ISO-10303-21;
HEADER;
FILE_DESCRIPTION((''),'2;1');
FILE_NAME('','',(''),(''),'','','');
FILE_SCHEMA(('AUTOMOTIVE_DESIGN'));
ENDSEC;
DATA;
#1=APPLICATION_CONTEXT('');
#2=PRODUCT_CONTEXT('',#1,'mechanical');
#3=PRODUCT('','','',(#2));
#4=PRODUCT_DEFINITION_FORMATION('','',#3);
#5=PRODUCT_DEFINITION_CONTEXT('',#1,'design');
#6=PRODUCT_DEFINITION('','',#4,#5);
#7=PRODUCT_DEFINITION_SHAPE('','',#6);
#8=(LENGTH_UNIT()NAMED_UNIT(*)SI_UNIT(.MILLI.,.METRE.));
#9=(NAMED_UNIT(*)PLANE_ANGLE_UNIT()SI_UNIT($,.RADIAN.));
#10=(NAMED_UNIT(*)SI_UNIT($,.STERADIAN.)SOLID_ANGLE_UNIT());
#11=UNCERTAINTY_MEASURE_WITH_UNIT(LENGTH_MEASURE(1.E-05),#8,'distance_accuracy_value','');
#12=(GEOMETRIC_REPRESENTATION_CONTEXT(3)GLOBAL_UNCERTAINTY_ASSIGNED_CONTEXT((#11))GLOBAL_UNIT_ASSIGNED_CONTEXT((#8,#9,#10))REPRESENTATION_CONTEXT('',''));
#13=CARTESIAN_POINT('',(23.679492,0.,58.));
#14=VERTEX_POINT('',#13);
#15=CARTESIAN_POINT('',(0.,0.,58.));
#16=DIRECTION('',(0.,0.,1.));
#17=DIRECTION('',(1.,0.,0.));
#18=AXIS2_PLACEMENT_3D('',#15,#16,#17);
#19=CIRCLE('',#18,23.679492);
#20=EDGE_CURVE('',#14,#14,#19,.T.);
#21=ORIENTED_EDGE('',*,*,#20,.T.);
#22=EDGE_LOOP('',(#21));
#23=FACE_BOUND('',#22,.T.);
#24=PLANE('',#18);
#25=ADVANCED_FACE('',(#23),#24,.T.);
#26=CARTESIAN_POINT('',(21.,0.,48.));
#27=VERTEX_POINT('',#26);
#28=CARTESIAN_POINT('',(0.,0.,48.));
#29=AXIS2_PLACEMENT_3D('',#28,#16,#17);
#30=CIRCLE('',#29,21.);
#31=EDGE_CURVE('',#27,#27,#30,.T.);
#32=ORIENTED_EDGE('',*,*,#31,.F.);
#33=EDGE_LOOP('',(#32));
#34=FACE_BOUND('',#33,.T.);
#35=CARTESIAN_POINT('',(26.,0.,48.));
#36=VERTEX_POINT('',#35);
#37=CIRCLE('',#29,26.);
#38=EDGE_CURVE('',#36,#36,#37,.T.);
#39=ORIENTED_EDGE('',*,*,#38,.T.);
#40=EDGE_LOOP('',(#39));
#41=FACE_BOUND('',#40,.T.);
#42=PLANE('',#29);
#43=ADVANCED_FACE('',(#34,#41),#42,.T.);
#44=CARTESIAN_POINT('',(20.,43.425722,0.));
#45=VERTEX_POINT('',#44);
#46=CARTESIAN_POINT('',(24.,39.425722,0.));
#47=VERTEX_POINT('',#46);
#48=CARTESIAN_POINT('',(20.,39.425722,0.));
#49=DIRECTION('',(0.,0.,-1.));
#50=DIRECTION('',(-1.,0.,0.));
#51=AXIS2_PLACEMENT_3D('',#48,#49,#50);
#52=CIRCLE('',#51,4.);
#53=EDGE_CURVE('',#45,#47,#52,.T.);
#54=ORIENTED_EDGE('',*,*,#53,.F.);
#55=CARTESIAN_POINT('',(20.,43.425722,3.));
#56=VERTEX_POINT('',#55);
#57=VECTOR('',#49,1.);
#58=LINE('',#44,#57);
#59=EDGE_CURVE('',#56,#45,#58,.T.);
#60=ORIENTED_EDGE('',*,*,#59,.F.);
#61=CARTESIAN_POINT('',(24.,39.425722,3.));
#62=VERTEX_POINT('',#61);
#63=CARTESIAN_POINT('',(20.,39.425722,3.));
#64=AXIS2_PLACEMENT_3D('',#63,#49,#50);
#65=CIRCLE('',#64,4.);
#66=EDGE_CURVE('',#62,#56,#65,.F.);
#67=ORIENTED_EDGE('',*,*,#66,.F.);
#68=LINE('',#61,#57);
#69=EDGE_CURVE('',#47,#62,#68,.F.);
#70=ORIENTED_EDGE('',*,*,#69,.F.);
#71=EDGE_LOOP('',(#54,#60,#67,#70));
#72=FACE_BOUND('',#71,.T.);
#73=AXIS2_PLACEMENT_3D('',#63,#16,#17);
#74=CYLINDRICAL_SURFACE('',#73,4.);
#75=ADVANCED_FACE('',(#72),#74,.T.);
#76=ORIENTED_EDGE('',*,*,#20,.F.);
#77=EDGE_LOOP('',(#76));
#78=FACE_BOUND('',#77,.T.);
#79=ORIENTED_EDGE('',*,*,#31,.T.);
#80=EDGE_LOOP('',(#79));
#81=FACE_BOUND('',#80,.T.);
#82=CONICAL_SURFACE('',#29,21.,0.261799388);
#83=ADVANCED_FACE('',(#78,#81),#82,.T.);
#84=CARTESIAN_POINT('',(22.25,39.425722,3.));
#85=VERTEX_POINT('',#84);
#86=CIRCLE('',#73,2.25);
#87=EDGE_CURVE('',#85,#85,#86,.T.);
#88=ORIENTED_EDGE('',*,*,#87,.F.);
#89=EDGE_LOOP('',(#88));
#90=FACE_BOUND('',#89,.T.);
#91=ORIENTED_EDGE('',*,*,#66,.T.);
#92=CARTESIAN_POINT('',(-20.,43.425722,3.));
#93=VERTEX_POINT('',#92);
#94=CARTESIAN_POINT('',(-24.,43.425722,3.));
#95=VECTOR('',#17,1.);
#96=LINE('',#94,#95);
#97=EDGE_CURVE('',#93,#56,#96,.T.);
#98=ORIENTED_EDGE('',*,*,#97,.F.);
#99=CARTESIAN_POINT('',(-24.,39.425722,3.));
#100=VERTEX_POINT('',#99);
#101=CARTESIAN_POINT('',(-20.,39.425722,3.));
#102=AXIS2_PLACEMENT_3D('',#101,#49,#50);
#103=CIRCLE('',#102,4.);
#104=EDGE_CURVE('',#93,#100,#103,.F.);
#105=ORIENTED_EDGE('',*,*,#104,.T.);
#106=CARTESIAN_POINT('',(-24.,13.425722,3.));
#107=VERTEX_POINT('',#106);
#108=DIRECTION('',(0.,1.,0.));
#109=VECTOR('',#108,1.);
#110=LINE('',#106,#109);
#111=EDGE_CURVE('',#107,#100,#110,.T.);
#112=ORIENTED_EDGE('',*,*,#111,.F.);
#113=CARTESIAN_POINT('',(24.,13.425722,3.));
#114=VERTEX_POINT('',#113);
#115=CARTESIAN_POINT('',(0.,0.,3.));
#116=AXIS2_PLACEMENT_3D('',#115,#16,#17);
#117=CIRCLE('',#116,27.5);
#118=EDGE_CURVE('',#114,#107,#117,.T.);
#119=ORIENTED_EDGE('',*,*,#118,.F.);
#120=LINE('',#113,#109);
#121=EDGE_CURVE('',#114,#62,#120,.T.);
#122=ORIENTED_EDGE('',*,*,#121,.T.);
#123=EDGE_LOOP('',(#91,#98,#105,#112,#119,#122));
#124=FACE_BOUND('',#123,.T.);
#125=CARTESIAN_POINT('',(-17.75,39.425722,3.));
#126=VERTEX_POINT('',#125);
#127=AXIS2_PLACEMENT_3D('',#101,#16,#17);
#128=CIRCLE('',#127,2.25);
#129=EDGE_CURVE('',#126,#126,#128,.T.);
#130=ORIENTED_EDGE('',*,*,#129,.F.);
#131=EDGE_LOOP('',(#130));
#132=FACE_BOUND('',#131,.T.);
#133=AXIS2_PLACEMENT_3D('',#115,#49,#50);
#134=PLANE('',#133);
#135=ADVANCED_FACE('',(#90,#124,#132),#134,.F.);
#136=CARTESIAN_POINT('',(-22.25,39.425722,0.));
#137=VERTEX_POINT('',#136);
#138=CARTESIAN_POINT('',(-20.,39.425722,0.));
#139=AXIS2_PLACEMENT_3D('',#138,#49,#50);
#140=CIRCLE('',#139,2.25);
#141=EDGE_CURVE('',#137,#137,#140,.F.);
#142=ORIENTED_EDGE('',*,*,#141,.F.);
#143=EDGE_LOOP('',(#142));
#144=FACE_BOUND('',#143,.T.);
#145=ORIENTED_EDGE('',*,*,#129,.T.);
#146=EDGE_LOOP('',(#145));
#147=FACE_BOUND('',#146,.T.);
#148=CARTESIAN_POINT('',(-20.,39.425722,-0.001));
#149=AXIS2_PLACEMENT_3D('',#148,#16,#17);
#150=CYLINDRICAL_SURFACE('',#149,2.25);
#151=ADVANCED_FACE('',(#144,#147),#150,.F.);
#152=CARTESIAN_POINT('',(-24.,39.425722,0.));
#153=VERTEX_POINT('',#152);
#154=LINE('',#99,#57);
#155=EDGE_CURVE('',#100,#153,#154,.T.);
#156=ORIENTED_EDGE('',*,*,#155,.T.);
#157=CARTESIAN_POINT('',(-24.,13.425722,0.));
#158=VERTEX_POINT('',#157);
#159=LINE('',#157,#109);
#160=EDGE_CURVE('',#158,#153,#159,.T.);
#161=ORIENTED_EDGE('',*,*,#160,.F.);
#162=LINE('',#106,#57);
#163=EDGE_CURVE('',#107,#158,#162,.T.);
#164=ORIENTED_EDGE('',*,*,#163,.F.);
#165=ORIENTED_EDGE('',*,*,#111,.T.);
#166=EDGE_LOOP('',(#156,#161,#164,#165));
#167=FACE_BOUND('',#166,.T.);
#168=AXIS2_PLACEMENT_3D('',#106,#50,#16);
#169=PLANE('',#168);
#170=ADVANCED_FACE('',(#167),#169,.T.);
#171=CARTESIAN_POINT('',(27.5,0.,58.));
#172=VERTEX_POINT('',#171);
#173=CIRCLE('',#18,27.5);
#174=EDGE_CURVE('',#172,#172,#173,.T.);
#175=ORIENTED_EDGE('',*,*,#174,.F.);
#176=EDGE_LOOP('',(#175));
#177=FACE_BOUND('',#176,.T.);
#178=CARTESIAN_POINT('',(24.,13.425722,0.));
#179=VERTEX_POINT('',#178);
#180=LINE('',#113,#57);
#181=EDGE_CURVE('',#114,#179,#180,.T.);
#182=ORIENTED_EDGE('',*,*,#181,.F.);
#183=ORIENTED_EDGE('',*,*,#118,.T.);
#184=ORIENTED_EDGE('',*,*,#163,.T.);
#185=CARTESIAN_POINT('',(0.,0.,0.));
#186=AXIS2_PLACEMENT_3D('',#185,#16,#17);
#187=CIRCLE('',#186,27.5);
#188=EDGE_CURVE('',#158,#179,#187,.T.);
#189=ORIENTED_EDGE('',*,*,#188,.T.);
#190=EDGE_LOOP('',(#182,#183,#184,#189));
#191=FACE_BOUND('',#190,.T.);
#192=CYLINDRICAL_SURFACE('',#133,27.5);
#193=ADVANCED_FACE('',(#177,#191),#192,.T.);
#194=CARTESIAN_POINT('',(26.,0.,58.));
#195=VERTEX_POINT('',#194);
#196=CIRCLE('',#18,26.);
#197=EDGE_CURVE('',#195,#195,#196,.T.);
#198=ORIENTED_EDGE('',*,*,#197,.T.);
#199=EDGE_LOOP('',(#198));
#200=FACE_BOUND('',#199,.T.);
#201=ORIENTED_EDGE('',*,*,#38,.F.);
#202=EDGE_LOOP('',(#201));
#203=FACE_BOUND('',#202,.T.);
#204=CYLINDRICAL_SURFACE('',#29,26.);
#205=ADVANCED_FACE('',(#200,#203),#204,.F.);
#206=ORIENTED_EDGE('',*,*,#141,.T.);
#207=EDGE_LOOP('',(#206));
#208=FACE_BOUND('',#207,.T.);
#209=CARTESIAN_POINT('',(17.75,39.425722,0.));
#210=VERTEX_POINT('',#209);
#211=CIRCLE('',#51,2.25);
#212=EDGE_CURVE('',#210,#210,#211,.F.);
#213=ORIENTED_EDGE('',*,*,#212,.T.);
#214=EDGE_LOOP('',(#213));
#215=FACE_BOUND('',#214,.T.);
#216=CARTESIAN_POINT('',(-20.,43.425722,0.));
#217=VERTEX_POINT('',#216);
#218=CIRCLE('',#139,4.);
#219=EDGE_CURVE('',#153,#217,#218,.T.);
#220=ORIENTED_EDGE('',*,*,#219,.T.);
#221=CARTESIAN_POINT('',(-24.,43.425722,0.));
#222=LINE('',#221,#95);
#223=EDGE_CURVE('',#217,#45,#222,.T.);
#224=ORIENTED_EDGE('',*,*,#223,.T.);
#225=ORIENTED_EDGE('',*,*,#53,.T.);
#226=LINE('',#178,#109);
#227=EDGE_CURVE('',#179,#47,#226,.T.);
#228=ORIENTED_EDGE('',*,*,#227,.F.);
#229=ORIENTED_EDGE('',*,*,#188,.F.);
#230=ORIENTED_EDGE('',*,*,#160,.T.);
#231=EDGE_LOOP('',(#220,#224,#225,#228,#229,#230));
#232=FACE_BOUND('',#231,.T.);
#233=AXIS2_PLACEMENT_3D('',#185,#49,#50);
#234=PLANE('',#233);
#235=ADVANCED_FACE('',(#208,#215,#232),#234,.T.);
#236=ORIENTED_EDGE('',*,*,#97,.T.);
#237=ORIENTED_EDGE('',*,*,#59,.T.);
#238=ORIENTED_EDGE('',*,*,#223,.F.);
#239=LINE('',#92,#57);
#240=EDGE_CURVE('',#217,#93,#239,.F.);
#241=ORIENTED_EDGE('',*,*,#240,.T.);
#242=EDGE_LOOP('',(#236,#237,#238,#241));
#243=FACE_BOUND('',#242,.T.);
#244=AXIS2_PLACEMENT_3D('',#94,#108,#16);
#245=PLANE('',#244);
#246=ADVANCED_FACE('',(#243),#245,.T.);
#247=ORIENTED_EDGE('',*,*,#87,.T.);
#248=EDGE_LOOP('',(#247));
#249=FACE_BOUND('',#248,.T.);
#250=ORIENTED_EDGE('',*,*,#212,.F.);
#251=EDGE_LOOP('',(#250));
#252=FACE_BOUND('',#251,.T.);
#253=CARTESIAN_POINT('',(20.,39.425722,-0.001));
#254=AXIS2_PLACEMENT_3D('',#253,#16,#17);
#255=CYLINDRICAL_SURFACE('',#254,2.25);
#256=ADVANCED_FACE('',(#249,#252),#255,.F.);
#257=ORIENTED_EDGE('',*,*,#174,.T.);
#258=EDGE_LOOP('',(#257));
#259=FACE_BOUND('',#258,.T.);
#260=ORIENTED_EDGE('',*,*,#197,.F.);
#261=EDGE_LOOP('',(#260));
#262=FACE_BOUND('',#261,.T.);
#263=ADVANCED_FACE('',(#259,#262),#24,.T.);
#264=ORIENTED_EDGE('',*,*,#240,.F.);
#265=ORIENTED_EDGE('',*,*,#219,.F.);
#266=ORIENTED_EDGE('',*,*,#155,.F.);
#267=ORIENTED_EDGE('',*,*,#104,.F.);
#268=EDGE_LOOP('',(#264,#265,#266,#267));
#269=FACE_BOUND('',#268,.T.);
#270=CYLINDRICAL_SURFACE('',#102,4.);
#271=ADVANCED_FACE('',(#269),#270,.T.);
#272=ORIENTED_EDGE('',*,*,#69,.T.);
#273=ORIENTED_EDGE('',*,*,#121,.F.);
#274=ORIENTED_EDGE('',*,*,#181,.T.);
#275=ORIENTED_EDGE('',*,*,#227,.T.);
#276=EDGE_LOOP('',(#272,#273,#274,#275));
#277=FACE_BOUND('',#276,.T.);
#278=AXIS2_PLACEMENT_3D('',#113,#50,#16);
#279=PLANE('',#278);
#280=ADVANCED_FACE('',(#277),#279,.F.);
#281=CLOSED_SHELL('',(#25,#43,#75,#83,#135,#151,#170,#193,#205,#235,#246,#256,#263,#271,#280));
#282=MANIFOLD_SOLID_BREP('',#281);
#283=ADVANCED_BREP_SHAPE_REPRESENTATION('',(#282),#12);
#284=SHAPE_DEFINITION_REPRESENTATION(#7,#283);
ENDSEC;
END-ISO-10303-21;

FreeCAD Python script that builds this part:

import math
import FreeCAD as App
import Part
import Sketcher
Q = App.Units.Quantity


def edges_at(feature, points):
    """Names of the edges that pass closest to the given points."""
    edges = feature.Shape.Edges
    near = lambda p: min(range(len(edges)), key=lambda i: edges[i].distToShape(Part.Vertex(*p))[0])
    return sorted({f"Edge{near(p) + 1}" for p in points})

doc = App.newDocument("Part")
body = doc.addObject("PartDesign::Body", "Body")

sketch1 = body.newObject("Sketcher::SketchObject", "Sketch")
sketch1.AttachmentSupport = (doc.getObject("XY_Plane"), [""])
sketch1.MapMode = "FlatFace"
sketch1.addGeometry([
    Part.ArcOfCircle(Part.Circle(App.Vector(0, 0, 0), App.Vector(0, 0, 1), 27.5), math.radians(150.77713), math.radians(389.22287)),
    Part.LineSegment(App.Vector(24, 13.425722, 0), App.Vector(24, 43.425722, 0)),
    Part.LineSegment(App.Vector(24, 43.425722, 0), App.Vector(-24, 43.425722, 0)),
    Part.LineSegment(App.Vector(-24, 43.425722, 0), App.Vector(-24, 13.425722, 0)),
], False)
sketch1.addConstraint([
    Sketcher.Constraint("Coincident", 0, 2, 1, 1),
    Sketcher.Constraint("Coincident", 1, 2, 2, 1),
    Sketcher.Constraint("Coincident", 2, 2, 3, 1),
    Sketcher.Constraint("Coincident", 3, 2, 0, 1),
    Sketcher.Constraint("Vertical", 1),
    Sketcher.Constraint("Horizontal", 2),
    Sketcher.Constraint("Vertical", 3),
    Sketcher.Constraint("Coincident", 0, 3, -1, 1),
    Sketcher.Constraint("Horizontal", 0, 2, 3, 2),
    Sketcher.Constraint("Radius", 0, Q("27.5 mm")),
    Sketcher.Constraint("DistanceX", 2, 2, 2, 1, Q("48 mm")),
    Sketcher.Constraint("DistanceY", 1, 1, 1, 2, Q("30 mm")),
])
pad1 = body.newObject("PartDesign::Pad", "Pad")
pad1.Profile = sketch1
pad1.Length = 3

sketch2 = body.newObject("Sketcher::SketchObject", "Sketch001")
sketch2.AttachmentSupport = (doc.getObject("XY_Plane"), [""])
sketch2.MapMode = "FlatFace"
sketch2.AttachmentOffset = App.Placement(App.Vector(0, 0, 3), App.Rotation())
sketch2.addGeometry(Part.Circle(App.Vector(0, 0, 0), App.Vector(0, 0, 1), 27.5), False)
sketch2.addConstraint([
    Sketcher.Constraint("Coincident", 0, 3, -1, 1),
    Sketcher.Constraint("Diameter", 0, Q("55 mm")),
])
pad2 = body.newObject("PartDesign::Pad", "Pad001")
pad2.Profile = sketch2
pad2.Length = 55

sketch3 = body.newObject("Sketcher::SketchObject", "Sketch002")
sketch3.AttachmentSupport = (doc.getObject("XY_Plane"), [""])
sketch3.MapMode = "FlatFace"
sketch3.AttachmentOffset = App.Placement(App.Vector(0, 0, 58), App.Rotation())
sketch3.addGeometry(Part.Circle(App.Vector(0, 0, 0), App.Vector(0, 0, 1), 26), False)
sketch3.addConstraint([
    Sketcher.Constraint("Coincident", 0, 3, -1, 1),
    Sketcher.Constraint("Diameter", 0, Q("52 mm")),
])
pocket1 = body.newObject("PartDesign::Pocket", "Pocket")
pocket1.Profile = sketch3
pocket1.Length = 10

sketch4 = body.newObject("Sketcher::SketchObject", "Sketch003")
sketch4.AttachmentSupport = (doc.getObject("XY_Plane"), [""])
sketch4.MapMode = "FlatFace"
sketch4.AttachmentOffset = App.Placement(App.Vector(0, 0, 48), App.Rotation())
sketch4.addGeometry(Part.Circle(App.Vector(0, 0, 0), App.Vector(0, 0, 1), 21), False)
sketch4.addConstraint([
    Sketcher.Constraint("Coincident", 0, 3, -1, 1),
    Sketcher.Constraint("Diameter", 0, Q("42 mm")),
])
pad3 = body.newObject("PartDesign::Pad", "Pad002")
pad3.Profile = sketch4
pad3.Length = 10
pad3.TaperAngle = 15

sketch5 = body.newObject("Sketcher::SketchObject", "Sketch004")
sketch5.AttachmentSupport = (doc.getObject("XY_Plane"), [""])
sketch5.MapMode = "FlatFace"
sketch5.AttachmentOffset = App.Placement(App.Vector(0, 0, 3), App.Rotation())
sketch5.addGeometry(Part.Circle(App.Vector(-20, 39.425722, 0), App.Vector(0, 0, 1), 2.25), False)
sketch5.addConstraint([
    Sketcher.Constraint("Diameter", 0, Q("4.5 mm")),
    Sketcher.Constraint("DistanceX", 0, 3, -1, 1, Q("20 mm")),
    Sketcher.Constraint("DistanceY", -1, 1, 0, 3, Q("39.425722 mm")),
])
pocket2 = body.newObject("PartDesign::Pocket", "Pocket001")
pocket2.Profile = sketch5
pocket2.Type = "UpToFirst"

sketch6 = body.newObject("Sketcher::SketchObject", "Sketch005")
sketch6.AttachmentSupport = (doc.getObject("XY_Plane"), [""])
sketch6.MapMode = "FlatFace"
sketch6.AttachmentOffset = App.Placement(App.Vector(0, 0, 3), App.Rotation())
sketch6.addGeometry(Part.Circle(App.Vector(20, 39.425722, 0), App.Vector(0, 0, 1), 2.25), False)
sketch6.addConstraint([
    Sketcher.Constraint("Diameter", 0, Q("4.5 mm")),
    Sketcher.Constraint("DistanceX", -1, 1, 0, 3, Q("20 mm")),
    Sketcher.Constraint("DistanceY", -1, 1, 0, 3, Q("39.425722 mm")),
])
pocket3 = body.newObject("PartDesign::Pocket", "Pocket002")
pocket3.Profile = sketch6
pocket3.Type = "UpToFirst"
doc.recompute()

fillet = body.newObject("PartDesign::Fillet", "Fillet")
fillet.Base = (pocket3, edges_at(pocket3, [(24, 43.426, 1.5), (-24, 43.426, 1.5)]))
fillet.Radius = 4

doc.recompute()
